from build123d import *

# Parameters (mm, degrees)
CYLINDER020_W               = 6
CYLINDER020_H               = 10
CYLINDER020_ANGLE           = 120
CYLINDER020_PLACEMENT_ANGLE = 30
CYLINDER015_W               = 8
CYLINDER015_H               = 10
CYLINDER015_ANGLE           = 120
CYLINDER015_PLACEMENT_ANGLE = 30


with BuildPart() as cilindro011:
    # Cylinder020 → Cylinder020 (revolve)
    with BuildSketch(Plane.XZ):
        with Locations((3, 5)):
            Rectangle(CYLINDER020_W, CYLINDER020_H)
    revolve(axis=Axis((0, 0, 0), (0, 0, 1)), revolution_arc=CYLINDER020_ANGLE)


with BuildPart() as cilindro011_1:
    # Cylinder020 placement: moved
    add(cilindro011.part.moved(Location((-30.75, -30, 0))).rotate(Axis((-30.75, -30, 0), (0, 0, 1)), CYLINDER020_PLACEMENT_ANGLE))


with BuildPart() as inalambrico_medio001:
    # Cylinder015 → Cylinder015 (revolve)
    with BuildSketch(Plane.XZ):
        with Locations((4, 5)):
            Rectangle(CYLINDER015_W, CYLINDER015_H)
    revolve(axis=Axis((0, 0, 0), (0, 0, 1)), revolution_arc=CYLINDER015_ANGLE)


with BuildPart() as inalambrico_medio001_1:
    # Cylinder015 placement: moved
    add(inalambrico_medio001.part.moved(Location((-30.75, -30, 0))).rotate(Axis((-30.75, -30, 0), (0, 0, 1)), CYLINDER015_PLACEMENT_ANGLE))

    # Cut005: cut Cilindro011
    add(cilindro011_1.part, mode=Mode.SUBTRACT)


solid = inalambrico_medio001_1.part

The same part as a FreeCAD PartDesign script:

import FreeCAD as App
import Part
import Sketcher

V = App.Vector
Q = App.Units.Quantity


def add_polygon(sketch, points):
    """Adds a closed chain of lines whose ends are joined by coincident constraints."""
    first, n = sketch.GeometryCount, len(points)
    for a, b in zip(points, points[1:] + points[:1]):
        sketch.addGeometry(Part.LineSegment(App.Vector(*a, 0), App.Vector(*b, 0)), False)
    for i in range(n):
        sketch.addConstraint(Sketcher.Constraint("Coincident", first + i, 2, first + (i + 1) % n, 1))

doc = App.newDocument("Part")
params = doc.addObject("Spreadsheet::Sheet", "Params")
for row, (alias, value) in enumerate([
    ("sketch1_width", "6 mm"),
    ("sketch1_height", "10 mm"),
    ("revolution_angle", "120 deg"),
    ("sketch2_width", "8 mm"),
    ("sketch2_height", "10 mm"),
    ("revolution2_angle", "120 deg"),
], start=1):
    params.set(f"A{row}", alias)
    params.set(f"B{row}", "=" + value)
    params.setAlias(f"B{row}", alias)

body = doc.addObject("PartDesign::Body", "Body")

sketch1 = body.newObject("Sketcher::SketchObject", "Sketch")
sketch1.AttachmentSupport = (doc.getObject("XZ_Plane"), [""])
sketch1.MapMode = "FlatFace"
add_polygon(sketch1, [(0, 10), (0, 0), (6, 0), (6, 10)])
sketch1.addConstraint([
    Sketcher.Constraint("Vertical", 0),
    Sketcher.Constraint("Horizontal", 1),
    Sketcher.Constraint("Vertical", 2),
    Sketcher.Constraint("Horizontal", 3),
    Sketcher.Constraint("Coincident", 0, 2, -1, 1),
    Sketcher.Constraint("DistanceX", 1, 1, 1, 2, Q("6 mm")),
    Sketcher.Constraint("DistanceY", 0, 2, 0, 1, Q("10 mm")),
])
sketch1.setExpression("Constraints[9]", "Params.sketch1_width")
sketch1.setExpression("Constraints[10]", "Params.sketch1_height")
revolution = body.newObject("PartDesign::Revolution", "Revolution")
revolution.Profile = sketch1
revolution.ReferenceAxis = (sketch1, ["V_Axis"])
revolution.setExpression("Angle", "Params.revolution_angle")
body2 = doc.addObject("PartDesign::Body", "Body001")
doc.recompute()

body.Placement = App.Placement(V(-30.75, -30, 0), App.Rotation(V(0, 0, 1), 30))
boolean = body2.newObject("PartDesign::Boolean", "Boolean")
boolean.Type = "Fuse"
boolean.addObjects([body])
body3 = doc.addObject("PartDesign::Body", "Body002")

sketch2 = body3.newObject("Sketcher::SketchObject", "Sketch001")
sketch2.AttachmentSupport = (doc.getObject("XZ_Plane002"), [""])
sketch2.MapMode = "FlatFace"
add_polygon(sketch2, [(0, 10), (0, 0), (8, 0), (8, 10)])
sketch2.addConstraint([
    Sketcher.Constraint("Vertical", 0),
    Sketcher.Constraint("Horizontal", 1),
    Sketcher.Constraint("Vertical", 2),
    Sketcher.Constraint("Horizontal", 3),
    Sketcher.Constraint("Coincident", 0, 2, -1, 1),
    Sketcher.Constraint("DistanceX", 1, 1, 1, 2, Q("8 mm")),
    Sketcher.Constraint("DistanceY", 0, 2, 0, 1, Q("10 mm")),
])
sketch2.setExpression("Constraints[9]", "Params.sketch2_width")
sketch2.setExpression("Constraints[10]", "Params.sketch2_height")
revolution2 = body3.newObject("PartDesign::Revolution", "Revolution001")
revolution2.Profile = sketch2
revolution2.ReferenceAxis = (sketch2, ["V_Axis"])
revolution2.setExpression("Angle", "Params.revolution2_angle")
body4 = doc.addObject("PartDesign::Body", "Body003")
doc.recompute()

body3.Placement = App.Placement(V(-30.75, -30, 0), App.Rotation(V(0, 0, 1), 30))
boolean2 = body4.newObject("PartDesign::Boolean", "Boolean001")
boolean2.Type = "Fuse"
boolean2.addObjects([body3])
doc.recompute()

boolean3 = body4.newObject("PartDesign::Boolean", "Boolean002")
boolean3.Type = "Cut"
boolean3.addObjects([body2])

doc.recompute()
